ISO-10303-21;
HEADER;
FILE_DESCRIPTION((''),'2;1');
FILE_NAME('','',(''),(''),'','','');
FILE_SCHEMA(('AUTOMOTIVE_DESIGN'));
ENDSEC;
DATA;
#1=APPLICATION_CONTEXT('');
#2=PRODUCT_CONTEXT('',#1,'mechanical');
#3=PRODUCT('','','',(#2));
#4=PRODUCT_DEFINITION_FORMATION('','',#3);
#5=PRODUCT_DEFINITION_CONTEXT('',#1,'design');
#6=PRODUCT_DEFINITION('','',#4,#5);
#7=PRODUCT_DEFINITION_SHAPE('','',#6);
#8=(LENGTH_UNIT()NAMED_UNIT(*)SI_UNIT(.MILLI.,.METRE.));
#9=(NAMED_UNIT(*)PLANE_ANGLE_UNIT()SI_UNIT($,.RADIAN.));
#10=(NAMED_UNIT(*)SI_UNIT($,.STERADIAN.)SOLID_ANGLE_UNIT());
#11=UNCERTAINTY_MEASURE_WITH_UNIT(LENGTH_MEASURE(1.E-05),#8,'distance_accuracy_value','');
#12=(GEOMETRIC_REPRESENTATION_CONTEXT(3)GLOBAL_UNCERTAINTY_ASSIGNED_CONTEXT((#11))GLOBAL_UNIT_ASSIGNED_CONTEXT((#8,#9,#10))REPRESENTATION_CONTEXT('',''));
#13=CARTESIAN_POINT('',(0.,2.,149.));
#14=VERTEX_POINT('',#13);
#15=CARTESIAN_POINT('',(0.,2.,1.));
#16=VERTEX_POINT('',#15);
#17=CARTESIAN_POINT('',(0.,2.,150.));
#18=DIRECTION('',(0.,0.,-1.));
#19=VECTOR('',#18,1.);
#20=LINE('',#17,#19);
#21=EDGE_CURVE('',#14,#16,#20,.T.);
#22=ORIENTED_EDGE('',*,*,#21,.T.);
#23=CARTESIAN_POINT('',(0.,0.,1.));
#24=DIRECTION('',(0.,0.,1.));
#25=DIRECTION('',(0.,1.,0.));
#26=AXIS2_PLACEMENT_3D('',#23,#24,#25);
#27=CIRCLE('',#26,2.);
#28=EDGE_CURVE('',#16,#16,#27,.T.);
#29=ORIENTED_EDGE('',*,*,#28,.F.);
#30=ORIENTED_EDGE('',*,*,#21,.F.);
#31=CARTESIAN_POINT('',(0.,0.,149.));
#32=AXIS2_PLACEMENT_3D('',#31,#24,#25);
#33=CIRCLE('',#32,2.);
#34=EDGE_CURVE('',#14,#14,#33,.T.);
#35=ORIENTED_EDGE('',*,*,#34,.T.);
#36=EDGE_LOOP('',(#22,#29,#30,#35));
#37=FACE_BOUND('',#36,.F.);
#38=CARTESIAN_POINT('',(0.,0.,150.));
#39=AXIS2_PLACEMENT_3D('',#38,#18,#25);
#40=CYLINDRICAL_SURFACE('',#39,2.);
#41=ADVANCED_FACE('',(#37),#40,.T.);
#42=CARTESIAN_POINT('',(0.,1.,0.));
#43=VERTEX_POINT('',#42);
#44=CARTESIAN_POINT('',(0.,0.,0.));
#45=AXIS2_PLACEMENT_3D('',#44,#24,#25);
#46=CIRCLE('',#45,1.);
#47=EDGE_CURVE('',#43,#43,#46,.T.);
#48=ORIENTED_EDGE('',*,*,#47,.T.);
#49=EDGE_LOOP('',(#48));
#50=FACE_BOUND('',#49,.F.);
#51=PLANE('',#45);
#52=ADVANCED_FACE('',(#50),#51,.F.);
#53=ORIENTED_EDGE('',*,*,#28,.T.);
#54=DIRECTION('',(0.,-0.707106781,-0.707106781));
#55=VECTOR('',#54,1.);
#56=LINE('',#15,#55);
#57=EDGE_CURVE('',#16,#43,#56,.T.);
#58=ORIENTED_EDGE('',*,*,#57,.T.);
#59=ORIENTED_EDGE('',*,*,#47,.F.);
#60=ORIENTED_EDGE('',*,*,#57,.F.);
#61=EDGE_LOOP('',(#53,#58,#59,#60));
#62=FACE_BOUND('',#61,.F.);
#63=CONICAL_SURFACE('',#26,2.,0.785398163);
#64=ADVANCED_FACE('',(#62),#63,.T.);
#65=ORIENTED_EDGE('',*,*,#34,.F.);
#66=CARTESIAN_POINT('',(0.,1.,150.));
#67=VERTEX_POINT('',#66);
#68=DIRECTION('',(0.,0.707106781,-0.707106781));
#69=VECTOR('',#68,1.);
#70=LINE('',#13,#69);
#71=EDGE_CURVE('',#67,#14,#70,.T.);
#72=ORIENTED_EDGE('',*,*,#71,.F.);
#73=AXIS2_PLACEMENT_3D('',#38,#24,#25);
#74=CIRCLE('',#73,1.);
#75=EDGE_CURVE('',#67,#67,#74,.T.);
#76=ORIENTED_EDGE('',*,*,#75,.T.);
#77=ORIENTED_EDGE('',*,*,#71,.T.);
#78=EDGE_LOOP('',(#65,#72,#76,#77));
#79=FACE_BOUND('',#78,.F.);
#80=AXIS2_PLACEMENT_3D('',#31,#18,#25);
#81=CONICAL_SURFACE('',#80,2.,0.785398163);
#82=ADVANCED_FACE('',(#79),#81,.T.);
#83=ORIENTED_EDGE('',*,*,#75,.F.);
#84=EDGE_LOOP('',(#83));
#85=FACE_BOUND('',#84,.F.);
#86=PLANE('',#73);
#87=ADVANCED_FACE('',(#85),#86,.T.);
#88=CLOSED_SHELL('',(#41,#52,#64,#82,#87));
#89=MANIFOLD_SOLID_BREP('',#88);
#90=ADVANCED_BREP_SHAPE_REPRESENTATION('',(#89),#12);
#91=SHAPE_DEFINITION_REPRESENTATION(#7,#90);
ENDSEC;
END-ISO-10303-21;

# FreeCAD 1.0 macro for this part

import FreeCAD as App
import Part
import Sketcher
Q = App.Units.Quantity


def edges_at(feature, points):
    """Names of the edges that pass closest to the given points."""
    edges = feature.Shape.Edges
    near = lambda p: min(range(len(edges)), key=lambda i: edges[i].distToShape(Part.Vertex(*p))[0])
    return sorted({f"Edge{near(p) + 1}" for p in points})


def add_polygon(sketch, points):
    """Adds a closed chain of lines whose ends are joined by coincident constraints."""
    first, n = sketch.GeometryCount, len(points)
    for a, b in zip(points, points[1:] + points[:1]):
        sketch.addGeometry(Part.LineSegment(App.Vector(*a, 0), App.Vector(*b, 0)), False)
    for i in range(n):
        sketch.addConstraint(Sketcher.Constraint("Coincident", first + i, 2, first + (i + 1) % n, 1))

doc = App.newDocument("Part")
params = doc.addObject("Spreadsheet::Sheet", "Params")
for row, (alias, value) in enumerate([
    ("sketch1_height", "150 mm"),
    ("sketch1_width", "2 mm"),
    ("revolution_angle", "360 deg"),
    ("chamfer_size", "1 mm"),
], start=1):
    params.set(f"A{row}", alias)
    params.set(f"B{row}", "=" + value)
    params.setAlias(f"B{row}", alias)

body = doc.addObject("PartDesign::Body", "Body")

# Sketch on YZ plane
sketch1 = doc.addObject("Sketcher::SketchObject", "Sketch")
body.addObject(sketch1)
sketch1.AttachmentSupport = (doc.YZ_Plane, [""])
sketch1.MapMode = "FlatFace"
add_polygon(sketch1, [(0, 150), (0, 0), (2, 0), (2, 150)])  # lines 0-3
sketch1.addConstraint([
    Sketcher.Constraint("Vertical", 0),
    Sketcher.Constraint("Horizontal", 1),
    Sketcher.Constraint("Vertical", 2),
    Sketcher.Constraint("Horizontal", 3),
    Sketcher.Constraint("Coincident", 0, 2, -1, 1),
    Sketcher.Constraint("DistanceY", 0, 2, 0, 1, Q("150 mm")),
    Sketcher.Constraint("DistanceX", 1, 1, 1, 2, Q("2 mm")),
])
sketch1.setExpression("Constraints[9]", "Params.sketch1_height")
sketch1.setExpression("Constraints[10]", "Params.sketch1_width")
revolution = doc.addObject("PartDesign::Revolution", "Revolution")
body.addObject(revolution)
revolution.Profile = sketch1
revolution.ReferenceAxis = (sketch1, ["V_Axis"])
revolution.setExpression("Angle", "Params.revolution_angle")
doc.recompute()

chamfer = doc.addObject("PartDesign::Chamfer", "Chamfer")
body.addObject(chamfer)
chamfer.Base = (revolution, edges_at(revolution, [(0, -2, 0), (0, -2, 150)]))
chamfer.setExpression("Size", "Params.chamfer_size")

doc.recompute()
